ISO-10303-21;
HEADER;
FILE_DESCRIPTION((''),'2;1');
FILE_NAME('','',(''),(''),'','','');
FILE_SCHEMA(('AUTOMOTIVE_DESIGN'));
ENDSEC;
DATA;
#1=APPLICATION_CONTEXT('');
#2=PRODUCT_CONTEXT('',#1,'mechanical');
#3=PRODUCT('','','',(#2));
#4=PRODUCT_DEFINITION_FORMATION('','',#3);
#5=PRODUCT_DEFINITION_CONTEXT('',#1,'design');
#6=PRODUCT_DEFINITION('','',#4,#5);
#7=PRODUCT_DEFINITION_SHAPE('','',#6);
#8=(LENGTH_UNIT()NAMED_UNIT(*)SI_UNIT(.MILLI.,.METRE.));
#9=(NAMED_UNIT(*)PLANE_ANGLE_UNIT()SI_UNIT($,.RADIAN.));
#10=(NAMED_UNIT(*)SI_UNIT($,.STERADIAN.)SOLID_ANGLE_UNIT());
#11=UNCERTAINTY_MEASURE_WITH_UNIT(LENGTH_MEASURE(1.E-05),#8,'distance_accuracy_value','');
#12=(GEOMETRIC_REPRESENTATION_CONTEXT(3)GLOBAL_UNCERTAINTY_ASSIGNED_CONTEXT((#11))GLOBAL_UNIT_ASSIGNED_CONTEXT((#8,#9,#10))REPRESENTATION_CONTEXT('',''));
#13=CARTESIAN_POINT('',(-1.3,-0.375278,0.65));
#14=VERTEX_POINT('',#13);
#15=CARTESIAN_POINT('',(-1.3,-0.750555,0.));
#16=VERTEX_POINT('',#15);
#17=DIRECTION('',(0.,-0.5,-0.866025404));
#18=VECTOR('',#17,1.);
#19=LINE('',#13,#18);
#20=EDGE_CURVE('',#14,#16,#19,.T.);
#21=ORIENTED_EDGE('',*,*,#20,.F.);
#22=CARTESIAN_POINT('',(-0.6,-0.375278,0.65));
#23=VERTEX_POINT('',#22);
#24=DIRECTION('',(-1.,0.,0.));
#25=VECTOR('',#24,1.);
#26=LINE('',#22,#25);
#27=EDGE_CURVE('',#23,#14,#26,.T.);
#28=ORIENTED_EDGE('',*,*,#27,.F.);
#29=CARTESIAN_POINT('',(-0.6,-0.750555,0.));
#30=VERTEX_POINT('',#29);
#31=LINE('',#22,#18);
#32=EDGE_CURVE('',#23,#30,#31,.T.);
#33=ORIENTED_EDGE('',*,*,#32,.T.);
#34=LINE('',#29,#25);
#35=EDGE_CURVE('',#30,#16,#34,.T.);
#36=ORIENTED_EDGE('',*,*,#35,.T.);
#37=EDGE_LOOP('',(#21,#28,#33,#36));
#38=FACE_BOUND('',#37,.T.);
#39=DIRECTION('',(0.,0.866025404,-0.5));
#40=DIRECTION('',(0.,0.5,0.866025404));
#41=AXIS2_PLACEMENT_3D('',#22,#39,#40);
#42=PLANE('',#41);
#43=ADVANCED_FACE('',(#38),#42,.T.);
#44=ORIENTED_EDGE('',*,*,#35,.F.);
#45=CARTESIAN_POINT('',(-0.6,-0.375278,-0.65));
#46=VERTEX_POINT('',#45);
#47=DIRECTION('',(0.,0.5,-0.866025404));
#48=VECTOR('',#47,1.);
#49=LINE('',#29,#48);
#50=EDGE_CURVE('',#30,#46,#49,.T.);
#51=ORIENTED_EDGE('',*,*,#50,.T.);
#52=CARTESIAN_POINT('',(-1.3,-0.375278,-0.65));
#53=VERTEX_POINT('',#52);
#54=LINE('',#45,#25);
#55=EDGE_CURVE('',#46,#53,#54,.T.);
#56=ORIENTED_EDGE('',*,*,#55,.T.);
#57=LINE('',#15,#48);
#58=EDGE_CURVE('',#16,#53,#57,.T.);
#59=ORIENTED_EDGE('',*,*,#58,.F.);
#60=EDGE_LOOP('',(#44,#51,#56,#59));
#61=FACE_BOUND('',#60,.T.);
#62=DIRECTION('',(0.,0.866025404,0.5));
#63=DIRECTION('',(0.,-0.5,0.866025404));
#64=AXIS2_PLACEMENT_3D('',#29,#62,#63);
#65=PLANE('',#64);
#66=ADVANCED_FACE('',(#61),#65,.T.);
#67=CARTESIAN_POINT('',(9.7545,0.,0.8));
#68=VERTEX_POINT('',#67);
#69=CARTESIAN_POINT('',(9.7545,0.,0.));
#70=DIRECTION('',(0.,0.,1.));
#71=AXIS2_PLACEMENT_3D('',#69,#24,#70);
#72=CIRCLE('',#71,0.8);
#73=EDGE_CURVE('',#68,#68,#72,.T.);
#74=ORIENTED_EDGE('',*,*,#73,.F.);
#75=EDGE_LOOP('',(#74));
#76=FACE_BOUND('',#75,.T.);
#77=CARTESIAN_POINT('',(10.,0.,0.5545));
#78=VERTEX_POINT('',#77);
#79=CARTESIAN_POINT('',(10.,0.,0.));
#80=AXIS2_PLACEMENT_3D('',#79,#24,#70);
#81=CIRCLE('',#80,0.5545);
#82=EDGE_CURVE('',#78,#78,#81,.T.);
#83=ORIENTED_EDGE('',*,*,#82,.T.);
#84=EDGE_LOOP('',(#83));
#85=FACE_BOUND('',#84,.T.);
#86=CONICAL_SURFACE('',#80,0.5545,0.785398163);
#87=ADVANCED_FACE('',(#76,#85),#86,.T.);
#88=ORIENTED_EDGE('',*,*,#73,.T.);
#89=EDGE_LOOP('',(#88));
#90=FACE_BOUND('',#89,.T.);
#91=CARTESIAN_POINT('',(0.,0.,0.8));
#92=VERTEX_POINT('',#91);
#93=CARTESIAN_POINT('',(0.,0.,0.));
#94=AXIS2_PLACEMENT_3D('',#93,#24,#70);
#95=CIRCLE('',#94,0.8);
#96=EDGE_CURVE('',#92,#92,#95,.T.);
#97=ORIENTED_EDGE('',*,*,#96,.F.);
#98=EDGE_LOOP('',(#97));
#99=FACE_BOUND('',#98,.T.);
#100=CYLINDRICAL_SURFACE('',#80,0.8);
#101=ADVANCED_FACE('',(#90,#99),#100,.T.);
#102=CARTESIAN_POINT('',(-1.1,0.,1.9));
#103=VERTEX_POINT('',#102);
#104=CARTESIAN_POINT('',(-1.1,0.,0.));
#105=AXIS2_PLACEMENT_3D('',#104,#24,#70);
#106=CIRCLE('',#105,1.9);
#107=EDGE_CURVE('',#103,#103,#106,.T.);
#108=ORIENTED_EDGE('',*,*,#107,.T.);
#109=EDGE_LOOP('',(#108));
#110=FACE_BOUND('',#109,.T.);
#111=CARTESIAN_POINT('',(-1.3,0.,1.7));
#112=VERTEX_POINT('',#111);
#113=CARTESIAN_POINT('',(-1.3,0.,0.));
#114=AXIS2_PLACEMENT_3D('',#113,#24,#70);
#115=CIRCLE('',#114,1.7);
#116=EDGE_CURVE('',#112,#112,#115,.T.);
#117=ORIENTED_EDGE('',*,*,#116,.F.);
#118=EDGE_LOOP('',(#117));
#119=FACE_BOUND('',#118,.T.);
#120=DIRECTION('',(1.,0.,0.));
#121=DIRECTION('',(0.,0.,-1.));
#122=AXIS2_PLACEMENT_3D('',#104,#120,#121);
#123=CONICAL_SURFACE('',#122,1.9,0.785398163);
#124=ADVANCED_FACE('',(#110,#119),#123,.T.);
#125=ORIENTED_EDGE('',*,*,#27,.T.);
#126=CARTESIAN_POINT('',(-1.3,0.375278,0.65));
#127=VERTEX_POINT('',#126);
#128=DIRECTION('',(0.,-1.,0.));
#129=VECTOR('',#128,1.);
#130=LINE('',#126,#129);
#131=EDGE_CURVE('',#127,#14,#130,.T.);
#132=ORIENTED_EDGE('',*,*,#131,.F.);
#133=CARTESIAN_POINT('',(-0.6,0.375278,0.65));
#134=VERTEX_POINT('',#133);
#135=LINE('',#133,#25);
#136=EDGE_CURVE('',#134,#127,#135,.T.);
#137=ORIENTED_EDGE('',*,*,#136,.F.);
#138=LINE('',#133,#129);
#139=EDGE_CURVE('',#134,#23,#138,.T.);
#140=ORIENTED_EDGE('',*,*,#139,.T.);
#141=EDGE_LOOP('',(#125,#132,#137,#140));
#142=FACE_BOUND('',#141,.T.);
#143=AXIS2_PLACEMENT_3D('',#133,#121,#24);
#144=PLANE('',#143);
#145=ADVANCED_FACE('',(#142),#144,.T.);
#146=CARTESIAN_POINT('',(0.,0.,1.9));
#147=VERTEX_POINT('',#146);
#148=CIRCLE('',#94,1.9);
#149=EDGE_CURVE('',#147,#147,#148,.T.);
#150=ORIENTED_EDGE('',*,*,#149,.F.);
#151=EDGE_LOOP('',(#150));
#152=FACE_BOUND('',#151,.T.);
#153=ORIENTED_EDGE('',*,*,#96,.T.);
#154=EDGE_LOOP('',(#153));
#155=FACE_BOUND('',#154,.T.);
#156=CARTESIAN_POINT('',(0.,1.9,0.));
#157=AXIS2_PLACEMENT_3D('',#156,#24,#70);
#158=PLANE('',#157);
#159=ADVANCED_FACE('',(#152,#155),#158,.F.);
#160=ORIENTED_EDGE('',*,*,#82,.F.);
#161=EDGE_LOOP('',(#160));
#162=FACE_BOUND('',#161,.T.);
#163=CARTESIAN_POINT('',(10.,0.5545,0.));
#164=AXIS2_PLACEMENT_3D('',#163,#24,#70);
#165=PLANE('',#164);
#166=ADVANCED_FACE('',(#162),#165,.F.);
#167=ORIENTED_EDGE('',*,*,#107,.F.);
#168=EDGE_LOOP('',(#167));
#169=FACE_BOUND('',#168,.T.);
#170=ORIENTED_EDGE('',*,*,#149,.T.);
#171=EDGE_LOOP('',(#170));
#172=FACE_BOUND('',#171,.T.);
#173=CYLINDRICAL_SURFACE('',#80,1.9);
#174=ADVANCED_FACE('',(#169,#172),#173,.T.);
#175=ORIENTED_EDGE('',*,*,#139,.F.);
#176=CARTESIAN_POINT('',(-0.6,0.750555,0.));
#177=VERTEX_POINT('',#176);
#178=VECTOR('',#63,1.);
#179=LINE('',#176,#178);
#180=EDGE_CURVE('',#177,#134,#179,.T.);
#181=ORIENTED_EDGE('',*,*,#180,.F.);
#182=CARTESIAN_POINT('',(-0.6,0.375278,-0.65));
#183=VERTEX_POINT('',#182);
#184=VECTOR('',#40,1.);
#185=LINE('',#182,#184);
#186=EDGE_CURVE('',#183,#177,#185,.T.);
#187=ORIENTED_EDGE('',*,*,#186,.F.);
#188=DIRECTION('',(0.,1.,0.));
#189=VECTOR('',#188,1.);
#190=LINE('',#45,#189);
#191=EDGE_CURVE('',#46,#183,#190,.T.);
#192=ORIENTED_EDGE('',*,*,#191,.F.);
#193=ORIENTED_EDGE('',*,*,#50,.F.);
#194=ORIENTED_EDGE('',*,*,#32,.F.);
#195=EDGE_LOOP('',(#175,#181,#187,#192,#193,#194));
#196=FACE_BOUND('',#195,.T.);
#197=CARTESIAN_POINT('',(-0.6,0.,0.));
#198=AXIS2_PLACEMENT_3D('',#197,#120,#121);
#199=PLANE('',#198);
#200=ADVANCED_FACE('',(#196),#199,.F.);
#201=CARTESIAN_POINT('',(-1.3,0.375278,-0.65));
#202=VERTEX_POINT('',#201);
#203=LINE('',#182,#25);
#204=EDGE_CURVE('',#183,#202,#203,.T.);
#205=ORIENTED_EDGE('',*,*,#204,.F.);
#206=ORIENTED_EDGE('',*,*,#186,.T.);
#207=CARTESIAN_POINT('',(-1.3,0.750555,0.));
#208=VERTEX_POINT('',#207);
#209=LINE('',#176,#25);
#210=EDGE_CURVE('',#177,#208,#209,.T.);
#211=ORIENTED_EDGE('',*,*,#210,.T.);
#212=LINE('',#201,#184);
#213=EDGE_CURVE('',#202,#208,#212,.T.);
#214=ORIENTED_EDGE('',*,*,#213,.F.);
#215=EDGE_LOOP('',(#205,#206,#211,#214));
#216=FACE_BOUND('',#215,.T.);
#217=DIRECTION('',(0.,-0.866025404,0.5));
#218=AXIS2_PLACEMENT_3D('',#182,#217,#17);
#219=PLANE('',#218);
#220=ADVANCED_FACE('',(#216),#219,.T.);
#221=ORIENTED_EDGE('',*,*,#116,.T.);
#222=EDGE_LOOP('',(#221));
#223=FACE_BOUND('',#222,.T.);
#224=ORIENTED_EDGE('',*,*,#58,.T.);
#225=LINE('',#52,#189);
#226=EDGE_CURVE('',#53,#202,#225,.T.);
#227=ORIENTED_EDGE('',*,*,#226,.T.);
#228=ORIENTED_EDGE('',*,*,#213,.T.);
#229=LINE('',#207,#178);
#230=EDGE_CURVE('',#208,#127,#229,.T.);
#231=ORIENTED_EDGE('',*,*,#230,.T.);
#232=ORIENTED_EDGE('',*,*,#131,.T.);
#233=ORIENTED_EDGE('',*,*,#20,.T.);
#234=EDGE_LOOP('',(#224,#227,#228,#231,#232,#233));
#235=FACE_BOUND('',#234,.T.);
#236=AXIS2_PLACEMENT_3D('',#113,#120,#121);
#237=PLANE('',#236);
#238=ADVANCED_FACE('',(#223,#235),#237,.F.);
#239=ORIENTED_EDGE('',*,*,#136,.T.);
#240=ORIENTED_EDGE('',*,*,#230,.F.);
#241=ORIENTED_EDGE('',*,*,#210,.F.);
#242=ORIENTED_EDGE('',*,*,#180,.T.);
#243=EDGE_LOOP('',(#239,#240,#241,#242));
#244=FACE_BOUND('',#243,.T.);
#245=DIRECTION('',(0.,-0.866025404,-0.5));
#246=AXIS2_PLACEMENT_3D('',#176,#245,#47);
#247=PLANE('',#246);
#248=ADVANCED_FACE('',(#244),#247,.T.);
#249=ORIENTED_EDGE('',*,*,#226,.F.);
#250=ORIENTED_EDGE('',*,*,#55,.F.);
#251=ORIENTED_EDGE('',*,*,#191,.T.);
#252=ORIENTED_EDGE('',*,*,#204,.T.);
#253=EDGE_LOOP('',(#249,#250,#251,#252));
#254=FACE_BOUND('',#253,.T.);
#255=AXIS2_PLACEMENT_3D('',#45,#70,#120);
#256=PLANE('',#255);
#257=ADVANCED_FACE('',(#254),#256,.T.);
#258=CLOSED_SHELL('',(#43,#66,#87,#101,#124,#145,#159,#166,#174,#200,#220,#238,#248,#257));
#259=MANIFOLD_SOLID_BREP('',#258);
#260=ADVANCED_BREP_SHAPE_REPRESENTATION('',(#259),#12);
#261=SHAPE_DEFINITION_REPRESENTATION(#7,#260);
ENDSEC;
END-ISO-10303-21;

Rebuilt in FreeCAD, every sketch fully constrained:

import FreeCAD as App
import Part
import Sketcher
Q = App.Units.Quantity


def add_polygon(sketch, points):
    """Adds a closed chain of lines whose ends are joined by coincident constraints."""
    first, n = sketch.GeometryCount, len(points)
    for a, b in zip(points, points[1:] + points[:1]):
        sketch.addGeometry(Part.LineSegment(App.Vector(*a, 0), App.Vector(*b, 0)), False)
    for i in range(n):
        sketch.addConstraint(Sketcher.Constraint("Coincident", first + i, 2, first + (i + 1) % n, 1))

doc = App.newDocument("Part")
body = doc.addObject("PartDesign::Body", "Body")

sketch1 = body.newObject("Sketcher::SketchObject", "Sketch")
sketch1.AttachmentSupport = (doc.getObject("XY_Plane"), [""])
sketch1.MapMode = "FlatFace"
add_polygon(sketch1, [(-1.3, 1.7), (-1.3, 0), (10, 0), (10, 0.55), (9.75, 0.8), (0, 0.8), (0, 1.9), (-1.1, 1.9)])
sketch1.addConstraint(Sketcher.Constraint("Vertical", 0))
sketch1.addConstraint(Sketcher.Constraint("Horizontal", 1))
sketch1.addConstraint(Sketcher.Constraint("Vertical", 2))
sketch1.addConstraint(Sketcher.Constraint("Horizontal", 4))
sketch1.addConstraint(Sketcher.Constraint("Vertical", 5))
sketch1.addConstraint(Sketcher.Constraint("Horizontal", 6))
sketch1.addConstraint(Sketcher.Constraint("PointOnObject", 0, 2, -1))
sketch1.addConstraint(Sketcher.Constraint("PointOnObject", 4, 2, -2))
sketch1.addConstraint(Sketcher.Constraint("Perpendicular", 3, 7))
sketch1.addConstraint(Sketcher.Constraint("Equal", 6, 5))
sketch1.addConstraint(Sketcher.Constraint("Angle", 3, Q("135 deg")))
sketch1.addConstraint(Sketcher.Constraint("DistanceX", 1, 1, 1, 2, 11.3))
sketch1.addConstraint(Sketcher.Constraint("DistanceX", 6, 2, 6, 1, 1.1))
sketch1.addConstraint(Sketcher.Constraint("DistanceY", 0, 2, 0, 1, 1.7))
sketch1.addConstraint(Sketcher.Constraint("DistanceX", -1, 1, 1, 2, 10.0))
sketch1.addConstraint(Sketcher.Constraint("DistanceX", 4, 2, 4, 1, 9.7545))
revolution = body.newObject("PartDesign::Revolution", "Revolution")
revolution.Profile = sketch1
revolution.ReferenceAxis = (sketch1, ["H_Axis"])
revolution.Angle = 360

sketch2 = body.newObject("Sketcher::SketchObject", "Sketch001")
sketch2.AttachmentSupport = (doc.getObject("YZ_Plane"), [""])
sketch2.MapMode = "FlatFace"
sketch2.AttachmentOffset = App.Placement(App.Vector(0, 0, -1.3), App.Rotation())
add_polygon(sketch2, [(-0.4, 0.7), (-0.8, 0), (-0.4, -0.7), (0.4, -0.7), (0.8, 0), (0.4, 0.7)])
sketch2.addConstraint(Sketcher.Constraint("Horizontal", 2))
sketch2.addConstraint(Sketcher.Constraint("Horizontal", 5))
sketch2.addConstraint(Sketcher.Constraint("Symmetric", 0, 2, 3, 2, -1, 1))
sketch2.addConstraint(Sketcher.Constraint("Symmetric", 1, 2, 4, 2, -1, 1))
sketch2.addConstraint(Sketcher.Constraint("PointOnObject", 0, 2, -1))
sketch2.addConstraint(Sketcher.Constraint("Parallel", 0, 3))
sketch2.addConstraint(Sketcher.Constraint("Vertical", 2, 2, 4, 2))
sketch2.addConstraint(Sketcher.Constraint("Angle", 0, Q("-120 deg")))
sketch2.addConstraint(Sketcher.Constraint("DistanceY", 2, 2, 4, 2, 1.3))
sketch2.addConstraint(Sketcher.Constraint("DistanceX", 2, 1, 2, 2, 0.750555))
pocket1 = body.newObject("PartDesign::Pocket", "Pocket")
pocket1.Profile = sketch2
pocket1.Length = 0.7
pocket1.Reversed = True

doc.recompute()
